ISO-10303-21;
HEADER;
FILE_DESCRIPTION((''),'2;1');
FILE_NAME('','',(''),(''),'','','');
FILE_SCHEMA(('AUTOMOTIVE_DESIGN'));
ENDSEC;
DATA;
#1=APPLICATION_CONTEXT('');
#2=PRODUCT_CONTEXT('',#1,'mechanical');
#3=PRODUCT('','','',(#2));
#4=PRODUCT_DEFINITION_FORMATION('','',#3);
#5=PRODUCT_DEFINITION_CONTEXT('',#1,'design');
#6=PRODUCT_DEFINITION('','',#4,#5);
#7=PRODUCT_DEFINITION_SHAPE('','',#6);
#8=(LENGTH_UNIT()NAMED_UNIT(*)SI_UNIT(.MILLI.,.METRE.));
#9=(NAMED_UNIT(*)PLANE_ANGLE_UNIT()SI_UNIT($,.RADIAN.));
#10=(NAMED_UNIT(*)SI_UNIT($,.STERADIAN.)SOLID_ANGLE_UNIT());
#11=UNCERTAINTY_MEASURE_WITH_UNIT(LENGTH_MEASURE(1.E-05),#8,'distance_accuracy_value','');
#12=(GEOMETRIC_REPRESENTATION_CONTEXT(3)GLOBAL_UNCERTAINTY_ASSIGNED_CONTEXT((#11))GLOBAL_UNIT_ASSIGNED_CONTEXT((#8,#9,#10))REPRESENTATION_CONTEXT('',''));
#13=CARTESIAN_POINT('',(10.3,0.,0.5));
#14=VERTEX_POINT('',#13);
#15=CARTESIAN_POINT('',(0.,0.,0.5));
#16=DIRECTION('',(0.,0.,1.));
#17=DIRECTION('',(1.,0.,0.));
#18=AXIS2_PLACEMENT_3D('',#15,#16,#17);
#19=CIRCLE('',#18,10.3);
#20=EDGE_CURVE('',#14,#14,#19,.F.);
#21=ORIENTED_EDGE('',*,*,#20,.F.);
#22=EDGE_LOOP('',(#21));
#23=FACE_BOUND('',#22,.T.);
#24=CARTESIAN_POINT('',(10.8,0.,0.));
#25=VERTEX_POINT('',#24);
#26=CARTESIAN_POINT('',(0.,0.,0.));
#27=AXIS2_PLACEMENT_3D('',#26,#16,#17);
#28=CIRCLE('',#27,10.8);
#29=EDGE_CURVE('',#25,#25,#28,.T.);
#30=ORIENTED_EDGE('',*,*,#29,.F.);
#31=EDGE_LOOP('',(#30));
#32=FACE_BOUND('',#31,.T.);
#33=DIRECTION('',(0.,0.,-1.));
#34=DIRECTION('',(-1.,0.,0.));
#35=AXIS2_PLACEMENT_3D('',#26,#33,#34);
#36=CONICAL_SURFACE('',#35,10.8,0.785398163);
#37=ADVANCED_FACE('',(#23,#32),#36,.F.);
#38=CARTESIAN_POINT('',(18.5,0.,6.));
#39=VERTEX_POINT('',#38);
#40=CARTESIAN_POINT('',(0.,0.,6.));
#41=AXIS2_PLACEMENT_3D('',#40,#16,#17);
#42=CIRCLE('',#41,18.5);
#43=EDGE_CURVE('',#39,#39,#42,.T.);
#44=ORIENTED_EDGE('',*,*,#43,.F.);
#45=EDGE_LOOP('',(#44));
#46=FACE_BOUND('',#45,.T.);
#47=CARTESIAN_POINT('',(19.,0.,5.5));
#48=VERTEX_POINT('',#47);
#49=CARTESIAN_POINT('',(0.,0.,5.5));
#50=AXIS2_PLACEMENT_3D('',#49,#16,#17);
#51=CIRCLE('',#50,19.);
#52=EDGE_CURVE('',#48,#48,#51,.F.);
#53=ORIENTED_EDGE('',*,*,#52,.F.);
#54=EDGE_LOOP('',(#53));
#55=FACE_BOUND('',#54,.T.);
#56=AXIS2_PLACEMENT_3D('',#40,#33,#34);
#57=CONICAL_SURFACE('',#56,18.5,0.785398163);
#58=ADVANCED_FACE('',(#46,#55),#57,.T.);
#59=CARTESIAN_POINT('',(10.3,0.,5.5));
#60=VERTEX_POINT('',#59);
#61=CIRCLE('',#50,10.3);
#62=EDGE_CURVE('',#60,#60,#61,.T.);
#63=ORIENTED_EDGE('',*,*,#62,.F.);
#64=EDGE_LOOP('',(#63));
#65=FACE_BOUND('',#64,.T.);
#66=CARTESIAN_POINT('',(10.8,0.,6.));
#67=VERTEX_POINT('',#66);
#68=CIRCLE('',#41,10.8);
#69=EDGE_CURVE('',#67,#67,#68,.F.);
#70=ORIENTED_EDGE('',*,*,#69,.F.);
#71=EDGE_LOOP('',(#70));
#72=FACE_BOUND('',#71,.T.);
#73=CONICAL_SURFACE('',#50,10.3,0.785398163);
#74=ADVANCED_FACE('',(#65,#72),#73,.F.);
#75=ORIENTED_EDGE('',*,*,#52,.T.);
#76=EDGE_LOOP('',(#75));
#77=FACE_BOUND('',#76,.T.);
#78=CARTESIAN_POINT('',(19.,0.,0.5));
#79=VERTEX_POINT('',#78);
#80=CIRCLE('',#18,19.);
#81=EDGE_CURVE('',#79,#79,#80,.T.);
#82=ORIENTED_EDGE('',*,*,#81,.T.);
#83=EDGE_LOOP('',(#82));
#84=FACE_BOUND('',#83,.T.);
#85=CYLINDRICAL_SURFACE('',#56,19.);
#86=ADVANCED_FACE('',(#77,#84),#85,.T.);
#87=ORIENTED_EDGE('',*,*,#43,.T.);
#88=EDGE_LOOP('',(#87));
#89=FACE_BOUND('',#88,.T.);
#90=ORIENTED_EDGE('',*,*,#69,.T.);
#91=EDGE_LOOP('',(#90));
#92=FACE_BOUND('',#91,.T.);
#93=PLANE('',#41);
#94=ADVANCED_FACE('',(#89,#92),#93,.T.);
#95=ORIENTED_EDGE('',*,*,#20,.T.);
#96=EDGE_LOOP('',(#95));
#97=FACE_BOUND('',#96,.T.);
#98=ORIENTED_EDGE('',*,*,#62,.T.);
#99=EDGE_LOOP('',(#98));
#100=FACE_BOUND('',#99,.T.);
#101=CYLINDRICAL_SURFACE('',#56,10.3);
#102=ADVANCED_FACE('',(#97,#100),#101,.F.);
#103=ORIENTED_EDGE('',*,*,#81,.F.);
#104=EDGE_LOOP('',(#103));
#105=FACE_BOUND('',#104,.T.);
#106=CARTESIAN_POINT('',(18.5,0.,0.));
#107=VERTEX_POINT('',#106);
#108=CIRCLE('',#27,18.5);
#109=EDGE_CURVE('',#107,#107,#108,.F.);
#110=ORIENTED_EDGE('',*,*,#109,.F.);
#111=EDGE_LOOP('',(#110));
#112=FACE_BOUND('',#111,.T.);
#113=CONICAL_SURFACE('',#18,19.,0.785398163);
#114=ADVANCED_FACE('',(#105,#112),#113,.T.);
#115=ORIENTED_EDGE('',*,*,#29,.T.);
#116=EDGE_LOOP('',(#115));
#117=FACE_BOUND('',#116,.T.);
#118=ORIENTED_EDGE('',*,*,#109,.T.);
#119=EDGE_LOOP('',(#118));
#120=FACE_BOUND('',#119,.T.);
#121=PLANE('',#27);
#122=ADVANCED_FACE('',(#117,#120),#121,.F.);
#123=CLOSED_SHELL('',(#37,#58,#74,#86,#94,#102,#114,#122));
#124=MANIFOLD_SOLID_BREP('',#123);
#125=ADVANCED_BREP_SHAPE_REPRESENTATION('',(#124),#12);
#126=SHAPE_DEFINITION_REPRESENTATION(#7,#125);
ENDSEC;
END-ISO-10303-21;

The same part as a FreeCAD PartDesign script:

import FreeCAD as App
import Part
import Sketcher
from FreeCAD import Vector
Q = App.Units.Quantity


def edges_at(feature, points):
    """Names of the edges that pass closest to the given points."""
    edges = feature.Shape.Edges
    near = lambda p: min(range(len(edges)), key=lambda i: edges[i].distToShape(Part.Vertex(*p))[0])
    return sorted({f"Edge{near(p) + 1}" for p in points})

doc = App.newDocument("Part")
body = doc.addObject("PartDesign::Body", "Body")

sketch1 = body.newObject("Sketcher::SketchObject", "Sketch")
sketch1.AttachmentSupport = (doc.getObject("XY_Plane"), [""])
sketch1.MapMode = "FlatFace"
sketch1.addGeometry([
    Part.Circle(Vector(0, 0, 0), Vector(0, 0, 1), 19),
    Part.Circle(Vector(0, 0, 0), Vector(0, 0, 1), 10.3),
], False)
sketch1.addConstraint([
    Sketcher.Constraint("Coincident", 0, 3, -1, 1),
    Sketcher.Constraint("Coincident", 1, 3, -1, 1),
    Sketcher.Constraint("Diameter", 0, Q("38 mm")),
    Sketcher.Constraint("Diameter", 1, Q("20.6 mm")),
])
pad1 = body.newObject("PartDesign::Pad", "Pad")
pad1.Profile = sketch1
pad1.Length = 6
doc.recompute()

chamfer = body.newObject("PartDesign::Chamfer", "Chamfer")
chamfer.Base = (pad1, edges_at(pad1, [
    (-19, 0, 0),
    (-19, 0, 6),
    (-10.3, 0, 0),
    (-10.3, 0, 6),
]))
chamfer.Size = 0.5

doc.recompute()
